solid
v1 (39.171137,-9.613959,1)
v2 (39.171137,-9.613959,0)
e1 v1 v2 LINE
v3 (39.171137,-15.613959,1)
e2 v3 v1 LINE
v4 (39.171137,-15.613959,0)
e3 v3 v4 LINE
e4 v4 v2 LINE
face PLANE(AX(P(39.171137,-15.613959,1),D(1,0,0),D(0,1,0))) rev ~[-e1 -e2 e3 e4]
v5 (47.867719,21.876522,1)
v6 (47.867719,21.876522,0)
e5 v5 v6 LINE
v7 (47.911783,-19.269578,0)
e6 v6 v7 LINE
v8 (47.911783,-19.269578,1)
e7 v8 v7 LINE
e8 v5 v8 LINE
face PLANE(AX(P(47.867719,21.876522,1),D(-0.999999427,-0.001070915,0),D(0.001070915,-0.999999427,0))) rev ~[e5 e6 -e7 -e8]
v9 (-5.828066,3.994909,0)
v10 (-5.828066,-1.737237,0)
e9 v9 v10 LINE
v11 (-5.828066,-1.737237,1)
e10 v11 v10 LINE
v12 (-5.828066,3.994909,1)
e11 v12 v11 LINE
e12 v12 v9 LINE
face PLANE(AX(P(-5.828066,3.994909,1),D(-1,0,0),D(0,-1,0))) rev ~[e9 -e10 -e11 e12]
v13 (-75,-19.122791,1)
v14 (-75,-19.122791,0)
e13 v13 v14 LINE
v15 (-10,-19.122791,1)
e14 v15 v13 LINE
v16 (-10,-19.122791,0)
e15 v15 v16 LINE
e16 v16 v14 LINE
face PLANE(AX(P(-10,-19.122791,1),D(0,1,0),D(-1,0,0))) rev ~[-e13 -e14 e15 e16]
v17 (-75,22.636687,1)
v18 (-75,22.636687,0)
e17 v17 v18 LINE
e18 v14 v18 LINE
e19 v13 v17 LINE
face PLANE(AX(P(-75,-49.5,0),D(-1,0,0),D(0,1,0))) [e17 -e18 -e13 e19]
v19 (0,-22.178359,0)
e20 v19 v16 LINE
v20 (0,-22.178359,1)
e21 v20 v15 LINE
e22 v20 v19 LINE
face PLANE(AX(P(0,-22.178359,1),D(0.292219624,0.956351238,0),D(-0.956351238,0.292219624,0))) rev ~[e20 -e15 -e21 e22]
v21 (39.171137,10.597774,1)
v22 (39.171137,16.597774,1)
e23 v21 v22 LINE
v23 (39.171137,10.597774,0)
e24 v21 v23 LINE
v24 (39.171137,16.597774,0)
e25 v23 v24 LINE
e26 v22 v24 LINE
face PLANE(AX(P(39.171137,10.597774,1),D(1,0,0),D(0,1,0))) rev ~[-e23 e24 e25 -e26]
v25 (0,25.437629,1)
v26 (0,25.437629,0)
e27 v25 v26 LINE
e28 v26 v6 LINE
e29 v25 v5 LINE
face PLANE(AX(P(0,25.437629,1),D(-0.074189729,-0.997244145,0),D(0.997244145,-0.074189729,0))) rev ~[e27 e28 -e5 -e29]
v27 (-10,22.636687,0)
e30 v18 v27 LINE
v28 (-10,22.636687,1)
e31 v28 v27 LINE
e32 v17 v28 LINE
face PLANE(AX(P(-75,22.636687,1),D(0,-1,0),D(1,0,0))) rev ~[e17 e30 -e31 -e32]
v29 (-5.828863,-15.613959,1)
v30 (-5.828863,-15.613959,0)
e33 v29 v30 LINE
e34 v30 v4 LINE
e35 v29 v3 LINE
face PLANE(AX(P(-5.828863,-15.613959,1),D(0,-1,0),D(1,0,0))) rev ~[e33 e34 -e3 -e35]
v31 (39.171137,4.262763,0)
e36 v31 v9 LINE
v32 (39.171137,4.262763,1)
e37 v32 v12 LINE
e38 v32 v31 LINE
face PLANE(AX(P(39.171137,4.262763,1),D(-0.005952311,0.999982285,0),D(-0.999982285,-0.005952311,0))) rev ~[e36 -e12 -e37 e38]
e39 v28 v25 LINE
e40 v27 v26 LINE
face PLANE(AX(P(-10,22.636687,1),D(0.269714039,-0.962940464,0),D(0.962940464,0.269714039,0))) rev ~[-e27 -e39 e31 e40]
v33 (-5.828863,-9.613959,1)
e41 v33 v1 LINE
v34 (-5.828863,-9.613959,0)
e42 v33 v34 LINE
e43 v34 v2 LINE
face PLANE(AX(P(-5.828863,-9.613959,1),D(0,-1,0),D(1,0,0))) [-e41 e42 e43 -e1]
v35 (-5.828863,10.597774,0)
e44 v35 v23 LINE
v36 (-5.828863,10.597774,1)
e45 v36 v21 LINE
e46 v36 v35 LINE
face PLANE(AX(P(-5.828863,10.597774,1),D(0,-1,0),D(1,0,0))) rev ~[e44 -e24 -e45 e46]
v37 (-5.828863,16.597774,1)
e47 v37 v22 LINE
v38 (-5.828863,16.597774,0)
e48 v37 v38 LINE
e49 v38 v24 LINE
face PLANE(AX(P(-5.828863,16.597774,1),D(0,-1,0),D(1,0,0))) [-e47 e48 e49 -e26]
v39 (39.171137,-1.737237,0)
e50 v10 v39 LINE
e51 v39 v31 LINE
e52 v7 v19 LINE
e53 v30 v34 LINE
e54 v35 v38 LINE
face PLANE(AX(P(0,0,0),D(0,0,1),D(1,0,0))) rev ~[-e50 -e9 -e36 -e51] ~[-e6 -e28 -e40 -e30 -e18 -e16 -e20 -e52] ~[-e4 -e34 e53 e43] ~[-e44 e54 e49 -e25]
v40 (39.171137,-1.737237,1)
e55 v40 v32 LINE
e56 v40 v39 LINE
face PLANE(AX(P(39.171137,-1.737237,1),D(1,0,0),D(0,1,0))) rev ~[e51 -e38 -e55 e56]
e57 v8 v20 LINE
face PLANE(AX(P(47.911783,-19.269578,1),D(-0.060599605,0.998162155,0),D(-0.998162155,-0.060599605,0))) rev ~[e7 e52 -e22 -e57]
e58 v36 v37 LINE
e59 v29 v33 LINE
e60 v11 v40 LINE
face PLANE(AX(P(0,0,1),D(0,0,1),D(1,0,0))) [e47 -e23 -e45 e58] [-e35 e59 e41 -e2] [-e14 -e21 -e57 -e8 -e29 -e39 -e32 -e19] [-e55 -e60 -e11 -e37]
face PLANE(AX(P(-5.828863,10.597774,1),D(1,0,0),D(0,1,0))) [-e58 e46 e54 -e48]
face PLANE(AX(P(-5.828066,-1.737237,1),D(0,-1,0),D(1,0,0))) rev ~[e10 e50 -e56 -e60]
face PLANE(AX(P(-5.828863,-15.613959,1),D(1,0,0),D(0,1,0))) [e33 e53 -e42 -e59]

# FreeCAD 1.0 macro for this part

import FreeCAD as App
import Part
import Sketcher
from FreeCAD import Vector
Q = App.Units.Quantity

doc = App.newDocument("Part")
body = doc.addObject("PartDesign::Body", "Body")

# Sketch on XY plane
sketch1 = body.newObject("Sketcher::SketchObject", "Sketch")
sketch1.AttachmentSupport = (doc.getObject("XY_Plane"), [""])
sketch1.MapMode = "FlatFace"
sketch1.addGeometry([
    Part.LineSegment(Vector(-75, 50, 0), Vector(-75, -50, 0)),
    Part.LineSegment(Vector(-75, -50, 0), Vector(75, -50, 0)),
    Part.LineSegment(Vector(75, -50, 0), Vector(75, 50, 0)),
    Part.LineSegment(Vector(75, 50, 0), Vector(-75, 50, 0)),
], False)
sketch1.addConstraint([
    Sketcher.Constraint("Coincident", 0, 2, 1, 1),
    Sketcher.Constraint("Coincident", 1, 2, 2, 1),
    Sketcher.Constraint("Coincident", 2, 2, 3, 1),
    Sketcher.Constraint("Coincident", 3, 2, 0, 1),
    Sketcher.Constraint("Vertical", 0),
    Sketcher.Constraint("Horizontal", 1),
    Sketcher.Constraint("Vertical", 2),
    Sketcher.Constraint("Horizontal", 3),
    Sketcher.Constraint("Symmetric", 0, 2, 2, 2, -1, 1),
    Sketcher.Constraint("DistanceX", 1, 1, 1, 2, Q("150 mm")),
    Sketcher.Constraint("DistanceY", 0, 2, 0, 1, Q("99 mm")),
])
pad1 = body.newObject("PartDesign::Pad", "Pad")
pad1.Profile = sketch1
pad1.Length = 1

# Sketch on XY plane
sketch2 = body.newObject("Sketcher::SketchObject", "Sketch001")
sketch2.AttachmentSupport = (doc.getObject("XY_Plane"), [""])
sketch2.MapMode = "FlatFace"
sketch2.AttachmentOffset = App.Placement(Vector(0, 0, 1), App.Rotation())
sketch2.addGeometry([
    Part.LineSegment(Vector(-6, 17, 0), Vector(-6, 11, 0)),  # 0
    Part.LineSegment(Vector(-6, 11, 0), Vector(39, 11, 0)),  # 1
    Part.LineSegment(Vector(39, 11, 0), Vector(39, 17, 0)),  # 2
    Part.LineSegment(Vector(39, 17, 0), Vector(-6, 17, 0)),  # 3
    Part.LineSegment(Vector(39, -2, 0), Vector(39, 4, 0)),  # 4
    Part.LineSegment(Vector(39, 4, 0), Vector(-6, 4, 0)),  # 5
    Part.LineSegment(Vector(-6, 4, 0), Vector(-6, -2, 0)),  # 6
    Part.LineSegment(Vector(-6, -2, 0), Vector(39, -2, 0)),  # 7
    Part.LineSegment(Vector(-6, -10, 0), Vector(-6, -16, 0)),  # 8
    Part.LineSegment(Vector(-6, -16, 0), Vector(39, -16, 0)),  # 9
    Part.LineSegment(Vector(39, -16, 0), Vector(39, -10, 0)),  # 10
    Part.LineSegment(Vector(39, -10, 0), Vector(-6, -10, 0)),  # 11
    Part.LineSegment(Vector(-75, 50, 0), Vector(-75, 23, 0)),  # 12
    Part.LineSegment(Vector(-75, 23, 0), Vector(-10, 23, 0)),  # 13
    Part.LineSegment(Vector(-10, 23, 0), Vector(0, 25, 0)),  # 14
    Part.LineSegment(Vector(0, 25, 0), Vector(48, 22, 0)),  # 15
    Part.LineSegment(Vector(48, 22, 0), Vector(48, -19, 0)),  # 16
    Part.LineSegment(Vector(48, -19, 0), Vector(0, -22, 0)),  # 17
    Part.LineSegment(Vector(0, -22, 0), Vector(-10, -19, 0)),  # 18
    Part.LineSegment(Vector(-10, -19, 0), Vector(-75, -19, 0)),  # 19
    Part.LineSegment(Vector(-75, -19, 0), Vector(-75, -50, 0)),  # 20
    Part.LineSegment(Vector(-75, -50, 0), Vector(75, -50, 0)),  # 21
    Part.LineSegment(Vector(75, -50, 0), Vector(75, 50, 0)),  # 22
    Part.LineSegment(Vector(75, 50, 0), Vector(-75, 50, 0)),  # 23
], False)
sketch2.addConstraint([
    Sketcher.Constraint("Coincident", 0, 2, 1, 1),
    Sketcher.Constraint("Coincident", 1, 2, 2, 1),
    Sketcher.Constraint("Coincident", 2, 2, 3, 1),
    Sketcher.Constraint("Coincident", 3, 2, 0, 1),
    Sketcher.Constraint("Coincident", 4, 2, 5, 1),
    Sketcher.Constraint("Coincident", 5, 2, 6, 1),
    Sketcher.Constraint("Coincident", 6, 2, 7, 1),
    Sketcher.Constraint("Coincident", 7, 2, 4, 1),
    Sketcher.Constraint("Coincident", 8, 2, 9, 1),
    Sketcher.Constraint("Coincident", 9, 2, 10, 1),
    Sketcher.Constraint("Coincident", 10, 2, 11, 1),
    Sketcher.Constraint("Coincident", 11, 2, 8, 1),
    Sketcher.Constraint("Coincident", 12, 2, 13, 1),
    Sketcher.Constraint("Coincident", 13, 2, 14, 1),
    Sketcher.Constraint("Coincident", 14, 2, 15, 1),
    Sketcher.Constraint("Coincident", 15, 2, 16, 1),
    Sketcher.Constraint("Coincident", 16, 2, 17, 1),
    Sketcher.Constraint("Coincident", 17, 2, 18, 1),
    Sketcher.Constraint("Coincident", 18, 2, 19, 1),
    Sketcher.Constraint("Coincident", 19, 2, 20, 1),
    Sketcher.Constraint("Coincident", 20, 2, 21, 1),
    Sketcher.Constraint("Coincident", 21, 2, 22, 1),
    Sketcher.Constraint("Coincident", 22, 2, 23, 1),
    Sketcher.Constraint("Coincident", 23, 2, 12, 1),
    Sketcher.Constraint("Vertical", 0),
    Sketcher.Constraint("Horizontal", 1),
    Sketcher.Constraint("Vertical", 2),
    Sketcher.Constraint("Horizontal", 3),
    Sketcher.Constraint("Vertical", 4),
    Sketcher.Constraint("Vertical", 6),
    Sketcher.Constraint("Horizontal", 7),
    Sketcher.Constraint("Vertical", 8),
    Sketcher.Constraint("Horizontal", 9),
    Sketcher.Constraint("Vertical", 10),
    Sketcher.Constraint("Horizontal", 11),
    Sketcher.Constraint("Vertical", 12),
    Sketcher.Constraint("Horizontal", 13),
    Sketcher.Constraint("Horizontal", 19),
    Sketcher.Constraint("Vertical", 20),
    Sketcher.Constraint("Horizontal", 21),
    Sketcher.Constraint("Vertical", 22),
    Sketcher.Constraint("Horizontal", 23),
    Sketcher.Constraint("Symmetric", 20, 2, 22, 2, -1, 1),
    Sketcher.Constraint("PointOnObject", 14, 2, -2),
    Sketcher.Constraint("PointOnObject", 17, 2, -2),
    Sketcher.Constraint("Vertical", 2, 2, 4, 2),
    Sketcher.Constraint("Vertical", 3, 2, 8, 2),
    Sketcher.Constraint("Vertical", 7, 2, 9, 2),
    Sketcher.Constraint("Vertical", 13, 2, 18, 2),
    Sketcher.Constraint("Vertical", 12, 2, 19, 2),
    Sketcher.Constraint("Equal", 2, 4),
    Sketcher.Constraint("Equal", 4, 8),
    Sketcher.Constraint("Equal", 15, 17),
    Sketcher.Constraint("DistanceX", 1, 1, 1, 2, Q("45 mm")),
    Sketcher.Constraint("DistanceX", 13, 1, 13, 2, Q("65 mm")),
    Sketcher.Constraint("DistanceX", 21, 1, 21, 2, Q("150 mm")),
    Sketcher.Constraint("DistanceY", 0, 2, 0, 1, Q("6 mm")),
    Sketcher.Constraint("DistanceY", 22, 1, 22, 2, Q("99 mm")),
    Sketcher.Constraint("Distance", 5, Q("45 mm")),
    Sketcher.Constraint("Distance", 15, Q("48 mm")),
    Sketcher.Constraint("DistanceY", 20, 2, 20, 1, Q("30.377209 mm")),
    Sketcher.Constraint("DistanceY", 17, 2, 8, 2, Q("6.5644 mm")),
    Sketcher.Constraint("DistanceY", 18, 2, 5, 2, Q("23.1177 mm")),
    Sketcher.Constraint("Distance", 14, Q("10.384858 mm")),
    Sketcher.Constraint("Distance", 18, Q("10.456409 mm")),
    Sketcher.Constraint("DistanceY", 6, 2, 6, 1, Q("5.732146 mm")),
    Sketcher.Constraint("DistanceY", 12, 2, 12, 1, Q("26.863313 mm")),
    Sketcher.Constraint("DistanceX", -1, 1, 15, 2, Q("47.867719 mm")),
    Sketcher.Constraint("DistanceY", 4, 2, 1, 2, Q("6.335011 mm")),
    Sketcher.Constraint("DistanceX", 2, 2, 15, 2, Q("8.696582 mm")),
    Sketcher.Constraint("DistanceY", 16, 2, 9, 2, Q("3.655619 mm")),
])
pocket1 = body.newObject("PartDesign::Pocket", "Pocket")
pocket1.Profile = sketch2
pocket1.Length = 25

doc.recompute()
